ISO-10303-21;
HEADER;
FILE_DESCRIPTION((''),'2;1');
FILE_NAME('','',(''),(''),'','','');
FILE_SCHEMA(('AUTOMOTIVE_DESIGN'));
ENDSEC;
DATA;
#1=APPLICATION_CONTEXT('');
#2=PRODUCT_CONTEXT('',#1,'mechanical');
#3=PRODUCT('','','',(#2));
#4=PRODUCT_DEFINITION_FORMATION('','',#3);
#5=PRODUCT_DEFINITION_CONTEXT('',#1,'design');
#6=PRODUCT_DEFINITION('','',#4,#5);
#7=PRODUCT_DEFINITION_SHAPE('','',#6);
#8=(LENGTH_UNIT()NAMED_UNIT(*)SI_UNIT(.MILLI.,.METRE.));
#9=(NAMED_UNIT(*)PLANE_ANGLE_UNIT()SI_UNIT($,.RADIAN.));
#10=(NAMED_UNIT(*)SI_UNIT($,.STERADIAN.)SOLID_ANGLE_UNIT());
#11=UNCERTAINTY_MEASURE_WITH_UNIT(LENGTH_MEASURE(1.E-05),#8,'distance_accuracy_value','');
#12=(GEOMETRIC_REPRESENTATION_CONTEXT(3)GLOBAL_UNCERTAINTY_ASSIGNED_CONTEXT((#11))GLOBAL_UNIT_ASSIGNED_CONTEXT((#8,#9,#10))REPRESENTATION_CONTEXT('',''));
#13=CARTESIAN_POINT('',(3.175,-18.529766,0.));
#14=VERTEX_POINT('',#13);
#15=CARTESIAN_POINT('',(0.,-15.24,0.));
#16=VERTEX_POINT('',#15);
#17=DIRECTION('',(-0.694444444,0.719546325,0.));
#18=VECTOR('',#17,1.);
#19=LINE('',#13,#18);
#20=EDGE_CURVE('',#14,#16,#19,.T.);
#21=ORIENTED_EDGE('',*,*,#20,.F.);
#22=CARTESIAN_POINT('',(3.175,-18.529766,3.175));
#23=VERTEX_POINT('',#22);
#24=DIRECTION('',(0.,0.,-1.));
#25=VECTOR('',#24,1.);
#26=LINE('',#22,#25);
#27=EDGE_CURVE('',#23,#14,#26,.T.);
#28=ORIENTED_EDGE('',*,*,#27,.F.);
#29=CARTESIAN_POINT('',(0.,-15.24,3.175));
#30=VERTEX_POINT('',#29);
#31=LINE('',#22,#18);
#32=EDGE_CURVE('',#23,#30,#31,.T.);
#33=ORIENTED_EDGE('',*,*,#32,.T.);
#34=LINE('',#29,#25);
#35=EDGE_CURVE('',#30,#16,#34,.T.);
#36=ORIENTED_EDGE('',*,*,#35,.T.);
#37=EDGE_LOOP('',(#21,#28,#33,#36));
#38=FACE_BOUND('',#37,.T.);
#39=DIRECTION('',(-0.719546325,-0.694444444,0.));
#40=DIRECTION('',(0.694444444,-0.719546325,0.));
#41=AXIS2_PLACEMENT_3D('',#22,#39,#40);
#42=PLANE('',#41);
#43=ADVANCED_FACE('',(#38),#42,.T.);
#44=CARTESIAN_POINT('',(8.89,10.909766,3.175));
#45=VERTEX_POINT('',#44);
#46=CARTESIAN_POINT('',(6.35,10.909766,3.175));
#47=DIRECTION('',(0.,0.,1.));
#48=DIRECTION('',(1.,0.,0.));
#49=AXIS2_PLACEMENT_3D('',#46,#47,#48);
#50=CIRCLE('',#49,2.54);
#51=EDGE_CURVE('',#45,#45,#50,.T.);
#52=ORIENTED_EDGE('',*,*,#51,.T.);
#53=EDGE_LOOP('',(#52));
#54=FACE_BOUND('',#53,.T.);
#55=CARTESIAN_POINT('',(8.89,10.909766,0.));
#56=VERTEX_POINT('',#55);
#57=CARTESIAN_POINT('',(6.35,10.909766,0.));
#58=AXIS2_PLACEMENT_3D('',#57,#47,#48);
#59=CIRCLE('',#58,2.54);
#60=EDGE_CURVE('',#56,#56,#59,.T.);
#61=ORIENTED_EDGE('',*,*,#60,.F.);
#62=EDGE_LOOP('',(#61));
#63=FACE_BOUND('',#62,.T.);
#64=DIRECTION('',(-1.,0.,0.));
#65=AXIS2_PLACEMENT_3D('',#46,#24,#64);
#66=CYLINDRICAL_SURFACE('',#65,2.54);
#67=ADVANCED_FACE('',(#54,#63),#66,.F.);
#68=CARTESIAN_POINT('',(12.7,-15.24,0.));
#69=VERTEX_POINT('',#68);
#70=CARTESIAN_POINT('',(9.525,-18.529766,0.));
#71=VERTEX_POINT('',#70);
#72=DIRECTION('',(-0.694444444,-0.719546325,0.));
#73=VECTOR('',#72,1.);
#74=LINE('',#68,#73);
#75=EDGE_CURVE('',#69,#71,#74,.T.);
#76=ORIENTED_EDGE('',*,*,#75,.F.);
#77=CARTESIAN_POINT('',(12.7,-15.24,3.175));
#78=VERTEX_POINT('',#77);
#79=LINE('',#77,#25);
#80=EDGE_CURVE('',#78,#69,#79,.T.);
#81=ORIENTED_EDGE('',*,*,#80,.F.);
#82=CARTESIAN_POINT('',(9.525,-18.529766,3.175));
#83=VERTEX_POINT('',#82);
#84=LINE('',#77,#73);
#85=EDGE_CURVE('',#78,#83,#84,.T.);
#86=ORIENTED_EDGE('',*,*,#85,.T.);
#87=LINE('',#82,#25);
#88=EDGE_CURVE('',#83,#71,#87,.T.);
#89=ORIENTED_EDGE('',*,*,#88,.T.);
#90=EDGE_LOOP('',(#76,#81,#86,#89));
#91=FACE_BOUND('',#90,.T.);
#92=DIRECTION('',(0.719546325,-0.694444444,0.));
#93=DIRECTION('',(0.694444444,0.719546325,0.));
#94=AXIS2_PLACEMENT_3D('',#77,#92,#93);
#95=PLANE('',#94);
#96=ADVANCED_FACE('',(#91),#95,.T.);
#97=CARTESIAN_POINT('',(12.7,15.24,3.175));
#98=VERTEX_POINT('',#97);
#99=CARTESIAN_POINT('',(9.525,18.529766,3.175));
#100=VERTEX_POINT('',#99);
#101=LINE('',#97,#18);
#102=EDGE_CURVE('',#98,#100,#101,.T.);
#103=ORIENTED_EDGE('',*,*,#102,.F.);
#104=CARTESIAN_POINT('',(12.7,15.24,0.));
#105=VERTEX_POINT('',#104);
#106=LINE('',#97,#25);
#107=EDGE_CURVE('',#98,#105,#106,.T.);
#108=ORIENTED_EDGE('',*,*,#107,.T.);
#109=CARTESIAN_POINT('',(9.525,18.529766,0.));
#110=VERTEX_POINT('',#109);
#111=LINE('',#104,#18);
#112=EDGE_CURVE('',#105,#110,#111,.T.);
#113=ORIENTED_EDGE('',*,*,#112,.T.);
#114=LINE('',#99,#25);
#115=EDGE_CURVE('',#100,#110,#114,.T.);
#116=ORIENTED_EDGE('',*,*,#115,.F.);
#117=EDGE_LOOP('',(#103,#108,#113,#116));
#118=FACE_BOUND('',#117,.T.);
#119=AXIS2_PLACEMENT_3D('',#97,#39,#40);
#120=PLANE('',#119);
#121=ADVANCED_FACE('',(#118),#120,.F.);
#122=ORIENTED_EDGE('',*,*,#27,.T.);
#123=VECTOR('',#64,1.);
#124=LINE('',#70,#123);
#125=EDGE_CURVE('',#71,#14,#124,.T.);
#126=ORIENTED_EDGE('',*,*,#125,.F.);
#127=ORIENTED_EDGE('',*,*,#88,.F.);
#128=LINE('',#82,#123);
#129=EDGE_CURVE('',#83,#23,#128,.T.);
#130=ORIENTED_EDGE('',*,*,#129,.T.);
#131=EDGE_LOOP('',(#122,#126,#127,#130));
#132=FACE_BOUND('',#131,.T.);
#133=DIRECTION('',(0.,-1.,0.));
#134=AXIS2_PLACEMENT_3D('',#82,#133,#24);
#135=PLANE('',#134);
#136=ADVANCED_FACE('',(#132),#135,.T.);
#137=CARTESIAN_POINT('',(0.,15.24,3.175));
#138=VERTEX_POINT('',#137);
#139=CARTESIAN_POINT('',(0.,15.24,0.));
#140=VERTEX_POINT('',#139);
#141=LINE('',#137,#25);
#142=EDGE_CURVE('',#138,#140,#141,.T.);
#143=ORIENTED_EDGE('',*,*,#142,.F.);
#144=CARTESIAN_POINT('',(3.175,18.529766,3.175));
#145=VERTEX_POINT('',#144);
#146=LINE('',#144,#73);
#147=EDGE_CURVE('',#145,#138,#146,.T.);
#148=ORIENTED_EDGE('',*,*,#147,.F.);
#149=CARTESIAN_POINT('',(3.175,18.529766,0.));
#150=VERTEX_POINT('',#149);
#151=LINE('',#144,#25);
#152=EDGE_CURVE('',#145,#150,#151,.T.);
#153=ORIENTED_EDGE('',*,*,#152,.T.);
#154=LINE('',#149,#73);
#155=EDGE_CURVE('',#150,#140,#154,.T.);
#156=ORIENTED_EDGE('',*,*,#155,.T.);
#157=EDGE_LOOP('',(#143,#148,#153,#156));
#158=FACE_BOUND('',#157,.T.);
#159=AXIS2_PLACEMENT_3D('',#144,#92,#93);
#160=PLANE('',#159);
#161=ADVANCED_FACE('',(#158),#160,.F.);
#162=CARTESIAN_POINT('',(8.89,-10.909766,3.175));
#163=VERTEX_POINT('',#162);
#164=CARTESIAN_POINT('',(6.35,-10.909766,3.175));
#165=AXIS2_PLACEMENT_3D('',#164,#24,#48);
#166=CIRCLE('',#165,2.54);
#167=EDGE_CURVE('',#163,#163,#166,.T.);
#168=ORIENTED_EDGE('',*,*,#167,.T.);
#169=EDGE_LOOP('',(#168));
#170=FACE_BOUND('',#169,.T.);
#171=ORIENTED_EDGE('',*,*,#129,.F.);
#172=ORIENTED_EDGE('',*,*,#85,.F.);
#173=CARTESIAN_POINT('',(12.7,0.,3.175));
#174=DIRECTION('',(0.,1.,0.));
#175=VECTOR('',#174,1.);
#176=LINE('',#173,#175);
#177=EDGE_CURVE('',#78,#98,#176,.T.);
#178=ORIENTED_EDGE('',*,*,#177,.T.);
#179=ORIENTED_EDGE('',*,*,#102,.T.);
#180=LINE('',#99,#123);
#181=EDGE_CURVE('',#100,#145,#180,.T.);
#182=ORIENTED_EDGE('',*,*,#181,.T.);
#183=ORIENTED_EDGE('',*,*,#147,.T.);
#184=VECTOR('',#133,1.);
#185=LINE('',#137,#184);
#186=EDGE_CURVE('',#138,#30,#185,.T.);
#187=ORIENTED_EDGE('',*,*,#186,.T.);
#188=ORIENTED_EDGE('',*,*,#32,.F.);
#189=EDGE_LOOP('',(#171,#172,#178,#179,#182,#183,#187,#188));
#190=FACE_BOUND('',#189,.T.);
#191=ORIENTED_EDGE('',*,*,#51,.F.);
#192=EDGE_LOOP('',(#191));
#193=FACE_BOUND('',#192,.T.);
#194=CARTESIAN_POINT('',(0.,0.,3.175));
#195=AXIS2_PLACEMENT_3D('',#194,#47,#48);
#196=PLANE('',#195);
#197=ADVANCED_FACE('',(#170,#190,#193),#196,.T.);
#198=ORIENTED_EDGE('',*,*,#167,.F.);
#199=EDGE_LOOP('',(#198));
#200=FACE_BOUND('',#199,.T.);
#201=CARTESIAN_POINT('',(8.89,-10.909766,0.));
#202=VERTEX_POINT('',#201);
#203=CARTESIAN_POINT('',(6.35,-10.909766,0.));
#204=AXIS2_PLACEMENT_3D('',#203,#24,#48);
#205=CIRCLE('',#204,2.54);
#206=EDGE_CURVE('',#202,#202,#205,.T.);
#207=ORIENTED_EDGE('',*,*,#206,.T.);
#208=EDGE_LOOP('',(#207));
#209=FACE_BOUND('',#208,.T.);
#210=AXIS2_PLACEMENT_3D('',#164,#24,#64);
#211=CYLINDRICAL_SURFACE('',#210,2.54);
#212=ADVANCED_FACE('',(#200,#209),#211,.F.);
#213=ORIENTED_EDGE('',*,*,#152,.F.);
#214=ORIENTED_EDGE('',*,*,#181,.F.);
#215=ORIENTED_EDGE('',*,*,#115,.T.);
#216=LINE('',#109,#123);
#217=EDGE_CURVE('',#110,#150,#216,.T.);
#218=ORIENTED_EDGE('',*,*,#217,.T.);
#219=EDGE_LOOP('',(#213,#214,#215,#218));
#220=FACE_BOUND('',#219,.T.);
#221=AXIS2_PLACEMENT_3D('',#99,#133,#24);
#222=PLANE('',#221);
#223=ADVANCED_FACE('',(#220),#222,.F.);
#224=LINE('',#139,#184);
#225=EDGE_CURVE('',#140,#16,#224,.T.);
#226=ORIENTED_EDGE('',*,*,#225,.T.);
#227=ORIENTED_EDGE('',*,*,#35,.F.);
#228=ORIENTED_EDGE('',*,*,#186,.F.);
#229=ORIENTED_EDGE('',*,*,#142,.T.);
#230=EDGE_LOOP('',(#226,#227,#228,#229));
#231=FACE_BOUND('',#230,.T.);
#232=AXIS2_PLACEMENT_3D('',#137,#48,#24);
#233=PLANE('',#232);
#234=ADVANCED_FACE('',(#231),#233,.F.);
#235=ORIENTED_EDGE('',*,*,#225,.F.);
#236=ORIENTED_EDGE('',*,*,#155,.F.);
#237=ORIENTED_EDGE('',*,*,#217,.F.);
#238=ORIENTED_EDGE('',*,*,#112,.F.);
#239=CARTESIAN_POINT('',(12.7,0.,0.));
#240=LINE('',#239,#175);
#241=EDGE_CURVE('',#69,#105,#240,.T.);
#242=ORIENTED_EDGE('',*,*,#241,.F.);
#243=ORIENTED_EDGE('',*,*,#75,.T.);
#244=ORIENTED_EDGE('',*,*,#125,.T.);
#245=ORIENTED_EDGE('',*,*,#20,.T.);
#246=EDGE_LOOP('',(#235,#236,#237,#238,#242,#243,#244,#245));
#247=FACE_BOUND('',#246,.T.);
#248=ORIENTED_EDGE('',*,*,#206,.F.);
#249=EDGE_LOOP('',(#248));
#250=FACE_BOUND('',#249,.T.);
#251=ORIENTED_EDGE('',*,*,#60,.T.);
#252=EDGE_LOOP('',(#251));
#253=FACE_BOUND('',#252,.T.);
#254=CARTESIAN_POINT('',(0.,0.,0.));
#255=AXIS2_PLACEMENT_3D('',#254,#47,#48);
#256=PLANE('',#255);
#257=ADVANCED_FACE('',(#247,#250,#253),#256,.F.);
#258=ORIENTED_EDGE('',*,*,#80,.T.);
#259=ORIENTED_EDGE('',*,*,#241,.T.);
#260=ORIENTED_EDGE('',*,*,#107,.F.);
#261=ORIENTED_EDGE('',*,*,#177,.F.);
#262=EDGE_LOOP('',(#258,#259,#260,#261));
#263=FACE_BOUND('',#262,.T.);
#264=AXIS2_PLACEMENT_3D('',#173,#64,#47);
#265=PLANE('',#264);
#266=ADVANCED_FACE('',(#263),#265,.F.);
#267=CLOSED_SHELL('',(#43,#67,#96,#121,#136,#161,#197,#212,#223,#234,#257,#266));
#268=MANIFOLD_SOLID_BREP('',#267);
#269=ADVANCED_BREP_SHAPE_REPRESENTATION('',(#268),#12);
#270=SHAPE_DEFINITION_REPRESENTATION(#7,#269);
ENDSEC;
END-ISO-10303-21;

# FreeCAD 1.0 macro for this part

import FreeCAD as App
import Part
import Sketcher
from FreeCAD import Vector
Q = App.Units.Quantity

doc = App.newDocument("Part")
body = doc.addObject("PartDesign::Body", "Body")

# Sketch on XY plane
sketch1 = doc.addObject("Sketcher::SketchObject", "Sketch")
body.addObject(sketch1)
sketch1.AttachmentSupport = (doc.XY_Plane, [""])
sketch1.MapMode = "FlatFace"
sketch1.addGeometry(Part.LineSegment(Vector(0, 0, 0), Vector(12.7, 0, 0)), False)
sketch1.addGeometry(Part.LineSegment(Vector(12.7, 0, 0), Vector(12.7, 15.24, 0)), False)
sketch1.addGeometry(Part.LineSegment(Vector(12.7, 15.24, 0), Vector(9.525, 18.529766, 0)), False)
sketch1.addGeometry(Part.LineSegment(Vector(9.525, 18.529766, 0), Vector(3.175, 18.529766, 0)), False)
sketch1.addGeometry(Part.LineSegment(Vector(3.175, 18.529766, 0), Vector(0, 15.24, 0)), False)
sketch1.addGeometry(Part.LineSegment(Vector(0, 15.24, 0), Vector(0, 0, 0)), False)
sketch1.addGeometry(Part.Circle(Vector(6.35, 10.909766, 0), Vector(0, 0, 1), 2.54), False)
sketch1.addConstraint(Sketcher.Constraint("Coincident", 0, 2, 1, 1))
sketch1.addConstraint(Sketcher.Constraint("Coincident", 1, 2, 2, 1))
sketch1.addConstraint(Sketcher.Constraint("Coincident", 2, 2, 3, 1))
sketch1.addConstraint(Sketcher.Constraint("Coincident", 3, 2, 4, 1))
sketch1.addConstraint(Sketcher.Constraint("Coincident", 4, 2, 5, 1))
sketch1.addConstraint(Sketcher.Constraint("Coincident", 5, 2, 0, 1))
sketch1.addConstraint(Sketcher.Constraint("Horizontal", 0))
sketch1.addConstraint(Sketcher.Constraint("Vertical", 1))
sketch1.addConstraint(Sketcher.Constraint("Horizontal", 3))
sketch1.addConstraint(Sketcher.Constraint("Vertical", 5))
sketch1.addConstraint(Sketcher.Constraint("Coincident", 5, 2, -1, 1))
sketch1.addConstraint(Sketcher.Constraint("Horizontal", 1, 2, 4, 2))
sketch1.addConstraint(Sketcher.Constraint("Equal", 2, 4))
sketch1.addConstraint(Sketcher.Constraint("Diameter", 6, Q("0.2 in")))
sketch1.addConstraint(Sketcher.Constraint("DistanceX", 0, 1, 0, 2, Q("0.5 in")))
sketch1.addConstraint(Sketcher.Constraint("DistanceY", 1, 1, 1, 2, Q("0.6 in")))
sketch1.addConstraint(Sketcher.Constraint("DistanceX", 3, 2, 3, 1, Q("0.25 in")))
sketch1.addConstraint(Sketcher.Constraint("DistanceY", 6, 3, 2, 2, Q("0.3 in")))
sketch1.addConstraint(Sketcher.Constraint("Distance", 2, Q("0.18 in")))
sketch1.addConstraint(Sketcher.Constraint("DistanceX", -1, 1, 6, 3, Q("0.25 in")))
pad1 = doc.addObject("PartDesign::Pad", "Pad")
body.addObject(pad1)
pad1.Profile = sketch1
pad1.Length = Q("0.125 in")
doc.recompute()

mirrored = doc.addObject("PartDesign::Mirrored", "Mirrored")
body.addObject(mirrored)
mirrored.Originals = [pad1]
mirrored.MirrorPlane = (doc.XZ_Plane, [""])
body.Tip = mirrored

doc.recompute()
